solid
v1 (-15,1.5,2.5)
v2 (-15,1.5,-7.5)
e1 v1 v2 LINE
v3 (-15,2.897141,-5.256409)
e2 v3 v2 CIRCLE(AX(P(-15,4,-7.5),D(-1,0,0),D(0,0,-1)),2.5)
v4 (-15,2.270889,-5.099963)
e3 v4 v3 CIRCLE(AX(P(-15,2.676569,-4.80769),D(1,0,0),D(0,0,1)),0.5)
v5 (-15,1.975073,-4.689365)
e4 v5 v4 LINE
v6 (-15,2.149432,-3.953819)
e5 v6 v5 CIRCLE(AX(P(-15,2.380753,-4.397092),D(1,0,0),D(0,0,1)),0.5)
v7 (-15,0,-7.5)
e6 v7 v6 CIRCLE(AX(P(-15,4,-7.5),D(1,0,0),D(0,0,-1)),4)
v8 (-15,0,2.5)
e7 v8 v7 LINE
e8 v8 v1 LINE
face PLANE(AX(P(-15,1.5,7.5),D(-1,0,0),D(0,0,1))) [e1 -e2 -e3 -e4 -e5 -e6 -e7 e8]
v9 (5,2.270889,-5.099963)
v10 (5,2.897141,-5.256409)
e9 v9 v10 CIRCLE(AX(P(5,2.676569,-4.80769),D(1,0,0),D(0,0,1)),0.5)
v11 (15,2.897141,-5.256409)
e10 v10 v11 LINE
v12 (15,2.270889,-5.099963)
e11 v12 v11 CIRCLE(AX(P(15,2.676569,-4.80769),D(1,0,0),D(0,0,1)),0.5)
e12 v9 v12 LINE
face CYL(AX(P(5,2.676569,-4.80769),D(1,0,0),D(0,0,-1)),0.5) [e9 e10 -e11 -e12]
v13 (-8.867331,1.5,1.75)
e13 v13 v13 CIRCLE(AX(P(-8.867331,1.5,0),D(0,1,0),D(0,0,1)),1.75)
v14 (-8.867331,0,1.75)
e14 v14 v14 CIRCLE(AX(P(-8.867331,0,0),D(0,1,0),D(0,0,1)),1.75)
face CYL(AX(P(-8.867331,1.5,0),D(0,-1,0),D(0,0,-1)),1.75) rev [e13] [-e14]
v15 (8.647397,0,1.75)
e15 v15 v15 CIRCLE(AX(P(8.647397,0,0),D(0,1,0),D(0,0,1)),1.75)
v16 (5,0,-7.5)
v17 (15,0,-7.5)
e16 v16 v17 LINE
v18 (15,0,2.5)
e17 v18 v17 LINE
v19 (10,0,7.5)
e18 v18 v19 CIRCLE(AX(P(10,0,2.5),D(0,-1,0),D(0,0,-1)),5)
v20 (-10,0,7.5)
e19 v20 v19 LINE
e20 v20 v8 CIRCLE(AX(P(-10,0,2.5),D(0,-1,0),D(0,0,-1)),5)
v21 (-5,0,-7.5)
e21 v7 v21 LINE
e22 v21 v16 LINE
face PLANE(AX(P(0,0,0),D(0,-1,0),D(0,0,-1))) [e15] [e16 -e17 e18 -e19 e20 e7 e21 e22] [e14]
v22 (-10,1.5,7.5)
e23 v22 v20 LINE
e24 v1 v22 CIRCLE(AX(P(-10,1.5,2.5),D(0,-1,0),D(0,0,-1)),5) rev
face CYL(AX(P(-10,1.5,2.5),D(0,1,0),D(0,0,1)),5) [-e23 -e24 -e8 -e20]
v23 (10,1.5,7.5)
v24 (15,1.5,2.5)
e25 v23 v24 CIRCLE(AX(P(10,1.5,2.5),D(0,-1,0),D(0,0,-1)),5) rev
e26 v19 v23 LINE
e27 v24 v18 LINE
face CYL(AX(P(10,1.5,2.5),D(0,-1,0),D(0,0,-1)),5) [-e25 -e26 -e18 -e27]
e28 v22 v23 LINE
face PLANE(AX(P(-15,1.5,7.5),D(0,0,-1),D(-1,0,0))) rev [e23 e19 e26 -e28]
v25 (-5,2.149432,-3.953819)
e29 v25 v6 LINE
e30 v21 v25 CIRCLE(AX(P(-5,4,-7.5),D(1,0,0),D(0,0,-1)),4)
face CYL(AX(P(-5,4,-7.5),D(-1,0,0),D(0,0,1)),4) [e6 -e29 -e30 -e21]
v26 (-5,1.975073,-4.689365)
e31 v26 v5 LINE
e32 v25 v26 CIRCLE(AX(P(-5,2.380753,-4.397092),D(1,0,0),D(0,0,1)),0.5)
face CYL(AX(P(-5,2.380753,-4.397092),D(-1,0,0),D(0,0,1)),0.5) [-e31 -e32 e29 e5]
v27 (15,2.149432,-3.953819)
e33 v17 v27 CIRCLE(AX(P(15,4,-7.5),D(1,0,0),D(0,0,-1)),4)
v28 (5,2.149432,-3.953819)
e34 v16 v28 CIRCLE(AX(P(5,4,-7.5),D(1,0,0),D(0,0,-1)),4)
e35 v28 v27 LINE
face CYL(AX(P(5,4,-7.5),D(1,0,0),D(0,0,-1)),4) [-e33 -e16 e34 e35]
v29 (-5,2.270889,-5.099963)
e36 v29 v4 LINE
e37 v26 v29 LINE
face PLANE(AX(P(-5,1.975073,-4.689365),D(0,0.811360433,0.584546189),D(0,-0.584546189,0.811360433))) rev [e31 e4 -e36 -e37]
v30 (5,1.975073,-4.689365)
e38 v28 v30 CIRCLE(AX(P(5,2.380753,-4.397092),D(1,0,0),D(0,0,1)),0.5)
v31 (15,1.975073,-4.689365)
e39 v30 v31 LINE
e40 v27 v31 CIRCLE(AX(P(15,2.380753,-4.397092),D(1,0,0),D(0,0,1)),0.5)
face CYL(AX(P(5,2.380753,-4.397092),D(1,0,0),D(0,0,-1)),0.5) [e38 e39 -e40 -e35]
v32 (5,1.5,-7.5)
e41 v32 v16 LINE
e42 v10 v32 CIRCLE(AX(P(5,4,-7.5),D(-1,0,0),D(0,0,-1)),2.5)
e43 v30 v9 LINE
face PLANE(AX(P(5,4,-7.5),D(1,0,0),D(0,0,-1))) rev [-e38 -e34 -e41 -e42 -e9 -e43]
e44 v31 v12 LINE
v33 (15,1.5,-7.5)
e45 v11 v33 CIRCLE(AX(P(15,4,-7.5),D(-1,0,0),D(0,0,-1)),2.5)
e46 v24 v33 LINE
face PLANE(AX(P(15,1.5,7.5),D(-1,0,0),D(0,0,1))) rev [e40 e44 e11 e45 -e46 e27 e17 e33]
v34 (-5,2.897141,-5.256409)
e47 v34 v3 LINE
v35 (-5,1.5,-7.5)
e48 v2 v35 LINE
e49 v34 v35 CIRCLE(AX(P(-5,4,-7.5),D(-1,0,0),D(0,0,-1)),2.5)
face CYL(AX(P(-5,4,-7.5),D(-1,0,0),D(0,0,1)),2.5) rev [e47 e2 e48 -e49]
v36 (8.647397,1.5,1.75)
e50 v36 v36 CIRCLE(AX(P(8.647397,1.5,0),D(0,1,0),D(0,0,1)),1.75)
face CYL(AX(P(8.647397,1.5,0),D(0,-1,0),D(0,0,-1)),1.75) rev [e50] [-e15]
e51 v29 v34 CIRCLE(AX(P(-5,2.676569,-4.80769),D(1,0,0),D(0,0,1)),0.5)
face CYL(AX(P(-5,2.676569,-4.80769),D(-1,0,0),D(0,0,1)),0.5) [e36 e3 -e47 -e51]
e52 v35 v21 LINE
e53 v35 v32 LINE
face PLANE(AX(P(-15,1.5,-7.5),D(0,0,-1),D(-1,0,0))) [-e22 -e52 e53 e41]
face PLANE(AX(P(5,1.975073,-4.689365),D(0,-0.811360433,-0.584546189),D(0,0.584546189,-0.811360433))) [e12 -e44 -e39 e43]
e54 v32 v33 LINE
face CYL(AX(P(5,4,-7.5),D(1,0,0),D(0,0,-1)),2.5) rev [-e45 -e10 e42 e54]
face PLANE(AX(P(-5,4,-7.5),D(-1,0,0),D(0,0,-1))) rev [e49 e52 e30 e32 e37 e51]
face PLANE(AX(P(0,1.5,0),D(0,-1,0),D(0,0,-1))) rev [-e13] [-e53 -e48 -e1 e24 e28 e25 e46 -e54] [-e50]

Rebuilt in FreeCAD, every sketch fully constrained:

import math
import FreeCAD as App
import Part
import Sketcher

V = App.Vector
Q = App.Units.Quantity


def edges_at(feature, points):
    """Names of the edges that pass closest to the given points."""
    edges = feature.Shape.Edges
    near = lambda p: min(range(len(edges)), key=lambda i: edges[i].distToShape(Part.Vertex(*p))[0])
    return sorted({f"Edge{near(p) + 1}" for p in points})

doc = App.newDocument("Part")
body = doc.addObject("PartDesign::Body", "Body")

sketch1 = body.newObject("Sketcher::SketchObject", "Sketch")
sketch1.AttachmentSupport = (doc.getObject("XZ_Plane"), [""])
sketch1.MapMode = "FlatFace"
sketch1.addGeometry([
    Part.LineSegment(V(-15, -7.5, 0), V(-15, 7.5, 0)),
    Part.LineSegment(V(-15, 7.5, 0), V(15, 7.5, 0)),
    Part.LineSegment(V(15, 7.5, 0), V(15, -7.5, 0)),
    Part.LineSegment(V(15, -7.5, 0), V(-15, -7.5, 0)),
    Part.Circle(V(-8.9, 0, 0), V(0, 0, 1), 1.8),
    Part.Circle(V(8.6, 0, 0), V(0, 0, 1), 1.8),
], False)
sketch1.addConstraint([
    Sketcher.Constraint("Coincident", 0, 2, 1, 1),
    Sketcher.Constraint("Coincident", 1, 2, 2, 1),
    Sketcher.Constraint("Coincident", 2, 2, 3, 1),
    Sketcher.Constraint("Coincident", 3, 2, 0, 1),
    Sketcher.Constraint("Vertical", 0),
    Sketcher.Constraint("Horizontal", 1),
    Sketcher.Constraint("Vertical", 2),
    Sketcher.Constraint("Horizontal", 3),
    Sketcher.Constraint("Equal", 4, 5),
    Sketcher.Constraint("Symmetric", 0, 2, 2, 2, -1, 1),
    Sketcher.Constraint("PointOnObject", 4, 3, -1),
    Sketcher.Constraint("PointOnObject", 5, 3, -1),
    Sketcher.Constraint("Diameter", 4, Q("3.5 mm")),
    Sketcher.Constraint("DistanceX", 1, 1, 1, 2, Q("30 mm")),
    Sketcher.Constraint("DistanceY", 0, 1, 0, 2, Q("15 mm")),
    Sketcher.Constraint("DistanceX", 4, 3, -1, 1, Q("8.867331 mm")),
    Sketcher.Constraint("DistanceX", 4, 3, 5, 3, Q("17.514728 mm")),
])
pad1 = body.newObject("PartDesign::Pad", "Pad")
pad1.Profile = sketch1
pad1.Length = 1.5
pad1.Reversed = True
doc.recompute()

fillet = body.newObject("PartDesign::Fillet", "Fillet")
fillet.Base = (pad1, edges_at(pad1, [(-15, 0.75, 7.5), (15, 0.75, 7.5)]))
fillet.Radius = 5

sketch2 = body.newObject("Sketcher::SketchObject", "Sketch001")
sketch2.AttachmentSupport = (doc.getObject("YZ_Plane"), [""])
sketch2.MapMode = "FlatFace"
sketch2.AttachmentOffset = App.Placement(V(0, 0, 15), App.Rotation())
sketch2.addGeometry([
    Part.LineSegment(V(1.5, -7.5, 0), V(0, -7.5, 0)),
    Part.ArcOfCircle(Part.Circle(V(4, -7.5, 0), V(0, 0, 1), 4), math.radians(180), math.radians(478)),
    Part.ArcOfCircle(Part.Circle(V(2.38, -4.4, 0), V(0, 0, 1), 0.5), math.radians(118), math.radians(216)),
    Part.LineSegment(V(1.98, -4.69, 0), V(2.27, -5.1, 0)),
    Part.ArcOfCircle(Part.Circle(V(2.68, -4.81, 0), V(0, 0, 1), 0.5), math.radians(-144), math.radians(-64)),
    Part.ArcOfCircle(Part.Circle(V(4, -7.5, 0), V(0, 0, 1), 2.5), math.radians(180), math.radians(476)),
], False)
sketch2.addConstraint([
    Sketcher.Constraint("Coincident", 0, 2, 1, 1),
    Sketcher.Constraint("Tangent", 1, 2, 2, 1),
    Sketcher.Constraint("Tangent", 2, 2, 3, 1),
    Sketcher.Constraint("Tangent", 3, 2, 4, 1),
    Sketcher.Constraint("Tangent", 4, 2, 5, 2),
    Sketcher.Constraint("Coincident", 5, 1, 0, 1),
    Sketcher.Constraint("Horizontal", 0),
    Sketcher.Constraint("Coincident", 5, 3, 1, 3),
    Sketcher.Constraint("Equal", 2, 4),
    Sketcher.Constraint("PointOnObject", 0, 2, -2),
    Sketcher.Constraint("Horizontal", 5, 3, 0, 2),
    Sketcher.Constraint("Radius", 1, Q("4 mm")),
    Sketcher.Constraint("Radius", 2, Q("0.5 mm")),
    Sketcher.Constraint("Radius", 5, Q("2.5 mm")),
    Sketcher.Constraint("DistanceY", 1, 3, -1, 1, Q("7.5 mm")),
    Sketcher.Constraint("DistanceY", 4, 3, 2, 3, Q("0.410598 mm")),
    Sketcher.Constraint("Distance", 3, Q("0.506062 mm")),
])
pad2 = body.newObject("PartDesign::Pad", "Pad001")
pad2.Profile = sketch2
pad2.Length = 10
pad2.Reversed = True
doc.recompute()

mirrored = body.newObject("PartDesign::Mirrored", "Mirrored")
mirrored.Originals = [pad2]
mirrored.MirrorPlane = (doc.getObject("YZ_Plane"), [""])
body.Tip = mirrored

doc.recompute()
